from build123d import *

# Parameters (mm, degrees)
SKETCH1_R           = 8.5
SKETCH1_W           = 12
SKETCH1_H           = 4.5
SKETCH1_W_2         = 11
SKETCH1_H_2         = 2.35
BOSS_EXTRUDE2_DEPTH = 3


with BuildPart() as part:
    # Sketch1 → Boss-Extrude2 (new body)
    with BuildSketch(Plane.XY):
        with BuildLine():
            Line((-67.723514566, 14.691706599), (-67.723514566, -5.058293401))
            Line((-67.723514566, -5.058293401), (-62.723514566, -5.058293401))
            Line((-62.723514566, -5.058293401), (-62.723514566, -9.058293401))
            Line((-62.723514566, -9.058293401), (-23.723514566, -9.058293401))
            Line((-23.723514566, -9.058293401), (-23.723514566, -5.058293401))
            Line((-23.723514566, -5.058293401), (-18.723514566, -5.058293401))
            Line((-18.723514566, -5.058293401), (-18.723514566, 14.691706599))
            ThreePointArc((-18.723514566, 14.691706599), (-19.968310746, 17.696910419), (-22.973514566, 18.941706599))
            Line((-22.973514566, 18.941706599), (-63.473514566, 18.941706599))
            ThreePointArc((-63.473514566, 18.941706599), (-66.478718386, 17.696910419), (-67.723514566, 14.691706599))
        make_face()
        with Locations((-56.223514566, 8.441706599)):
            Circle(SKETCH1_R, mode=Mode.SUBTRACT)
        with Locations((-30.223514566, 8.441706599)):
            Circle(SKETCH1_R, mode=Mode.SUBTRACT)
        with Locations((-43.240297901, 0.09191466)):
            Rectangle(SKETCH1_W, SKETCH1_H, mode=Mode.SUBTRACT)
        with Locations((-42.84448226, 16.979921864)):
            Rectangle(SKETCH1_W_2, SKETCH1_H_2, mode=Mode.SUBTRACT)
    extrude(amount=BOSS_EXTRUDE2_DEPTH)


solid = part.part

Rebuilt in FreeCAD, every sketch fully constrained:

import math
import FreeCAD as App
import Part
import Sketcher
Q = App.Units.Quantity


def add_polygon(sketch, points):
    """Adds a closed chain of lines whose ends are joined by coincident constraints."""
    first, n = sketch.GeometryCount, len(points)
    for a, b in zip(points, points[1:] + points[:1]):
        sketch.addGeometry(Part.LineSegment(App.Vector(*a, 0), App.Vector(*b, 0)), False)
    for i in range(n):
        sketch.addConstraint(Sketcher.Constraint("Coincident", first + i, 2, first + (i + 1) % n, 1))

doc = App.newDocument("Part")
body = doc.addObject("PartDesign::Body", "Body")

sketch1 = body.newObject("Sketcher::SketchObject", "Sketch")
sketch1.AttachmentSupport = (doc.getObject("XY_Plane"), [""])
sketch1.MapMode = "FlatFace"
sketch1.addGeometry(Part.LineSegment(App.Vector(-67.723515, 14.691707, 0), App.Vector(-67.723515, -5.058293, 0)), False)
sketch1.addGeometry(Part.LineSegment(App.Vector(-67.723515, -5.058293, 0), App.Vector(-62.723515, -5.058293, 0)), False)
sketch1.addGeometry(Part.LineSegment(App.Vector(-62.723515, -5.058293, 0), App.Vector(-62.723515, -9.058293, 0)), False)
sketch1.addGeometry(Part.LineSegment(App.Vector(-62.723515, -9.058293, 0), App.Vector(-23.723515, -9.058293, 0)), False)
sketch1.addGeometry(Part.LineSegment(App.Vector(-23.723515, -9.058293, 0), App.Vector(-23.723515, -5.058293, 0)), False)
sketch1.addGeometry(Part.LineSegment(App.Vector(-23.723515, -5.058293, 0), App.Vector(-18.723515, -5.058293, 0)), False)
sketch1.addGeometry(Part.LineSegment(App.Vector(-18.723515, -5.058293, 0), App.Vector(-18.723515, 14.691707, 0)), False)
sketch1.addGeometry(Part.ArcOfCircle(Part.Circle(App.Vector(-22.973515, 14.691707, 0), App.Vector(0, 0, 1), 4.25), math.radians(0), math.radians(90)), False)
sketch1.addGeometry(Part.LineSegment(App.Vector(-22.973515, 18.941707, 0), App.Vector(-63.473515, 18.941707, 0)), False)
sketch1.addGeometry(Part.ArcOfCircle(Part.Circle(App.Vector(-63.473515, 14.691707, 0), App.Vector(0, 0, 1), 4.25), math.radians(90), math.radians(180)), False)
add_polygon(sketch1, [(-37.240298, -2.158085), (-49.240298, -2.158085), (-49.240298, 2.341915), (-37.240298, 2.341915)])
sketch1.addGeometry(Part.Circle(App.Vector(-56.223515, 8.441707, 0), App.Vector(0, 0, 1), 8.5), False)
sketch1.addGeometry(Part.Circle(App.Vector(-30.223515, 8.441707, 0), App.Vector(0, 0, 1), 8.5), False)
add_polygon(sketch1, [(-37.344482, 15.804922), (-48.344482, 15.804922), (-48.344482, 18.154922), (-37.344482, 18.154922)])
sketch1.addConstraint([
    Sketcher.Constraint("Coincident", 0, 2, 1, 1),
    Sketcher.Constraint("Coincident", 1, 2, 2, 1),
    Sketcher.Constraint("Coincident", 2, 2, 3, 1),
    Sketcher.Constraint("Coincident", 3, 2, 4, 1),
    Sketcher.Constraint("Coincident", 4, 2, 5, 1),
    Sketcher.Constraint("Coincident", 5, 2, 6, 1),
    Sketcher.Constraint("Tangent", 6, 2, 7, 1),
    Sketcher.Constraint("Tangent", 7, 2, 8, 1),
    Sketcher.Constraint("Tangent", 8, 2, 9, 1),
    Sketcher.Constraint("Tangent", 9, 2, 0, 1),
    Sketcher.Constraint("Vertical", 0),
    Sketcher.Constraint("Horizontal", 1),
    Sketcher.Constraint("Vertical", 2),
    Sketcher.Constraint("Horizontal", 3),
    Sketcher.Constraint("Vertical", 4),
    Sketcher.Constraint("Horizontal", 5),
    Sketcher.Constraint("Vertical", 6),
    Sketcher.Constraint("Horizontal", 8),
    Sketcher.Constraint("Horizontal", 10),
    Sketcher.Constraint("Vertical", 11),
    Sketcher.Constraint("Horizontal", 12),
    Sketcher.Constraint("Vertical", 13),
    Sketcher.Constraint("Horizontal", 16),
    Sketcher.Constraint("Vertical", 17),
    Sketcher.Constraint("Horizontal", 18),
    Sketcher.Constraint("Vertical", 19),
    Sketcher.Constraint("Equal", 7, 9),
    Sketcher.Constraint("Equal", 14, 15),
    Sketcher.Constraint("Horizontal", 14, 3, 15, 3),
    Sketcher.Constraint("Horizontal", 1, 2, 4, 2),
    Sketcher.Constraint("Equal", 1, 5),
    Sketcher.Constraint("Diameter", 14, Q("17 mm")),
    Sketcher.Constraint("DistanceX", 1, 1, 1, 2, Q("5 mm")),
    Sketcher.Constraint("DistanceX", 3, 1, 3, 2, Q("39 mm")),
    Sketcher.Constraint("DistanceX", 10, 2, 10, 1, Q("12 mm")),
    Sketcher.Constraint("DistanceX", 16, 2, 16, 1, Q("11 mm")),
    Sketcher.Constraint("DistanceY", 2, 2, 2, 1, Q("4 mm")),
    Sketcher.Constraint("Radius", 7, Q("4.25 mm")),
    Sketcher.Constraint("DistanceY", 11, 1, 11, 2, Q("4.5 mm")),
    Sketcher.Constraint("DistanceX", 14, 3, 15, 3, Q("26 mm")),
    Sketcher.Constraint("DistanceY", 4, 2, 7, 2, Q("24 mm")),
    Sketcher.Constraint("DistanceY", 17, 1, 17, 2, Q("2.35 mm")),
    Sketcher.Constraint("DistanceX", 0, 2, 14, 3, Q("11.5 mm")),
    Sketcher.Constraint("DistanceY", 0, 2, 14, 3, Q("13.5 mm")),
    Sketcher.Constraint("DistanceY", -1, 1, 16, 2, Q("15.804922 mm")),
    Sketcher.Constraint("DistanceY", 10, 2, 14, 3, Q("10.599792 mm")),
    Sketcher.Constraint("DistanceX", 7, 3, -1, 1, Q("22.973515 mm")),
    Sketcher.Constraint("DistanceY", -1, 1, 7, 3, Q("14.691707 mm")),
    Sketcher.Constraint("DistanceX", 10, 2, -1, 1, Q("49.240298 mm")),
    Sketcher.Constraint("DistanceX", 16, 2, -1, 1, Q("48.344482 mm")),
])
pad1 = body.newObject("PartDesign::Pad", "Pad")
pad1.Profile = sketch1
pad1.Length = 3

doc.recompute()
